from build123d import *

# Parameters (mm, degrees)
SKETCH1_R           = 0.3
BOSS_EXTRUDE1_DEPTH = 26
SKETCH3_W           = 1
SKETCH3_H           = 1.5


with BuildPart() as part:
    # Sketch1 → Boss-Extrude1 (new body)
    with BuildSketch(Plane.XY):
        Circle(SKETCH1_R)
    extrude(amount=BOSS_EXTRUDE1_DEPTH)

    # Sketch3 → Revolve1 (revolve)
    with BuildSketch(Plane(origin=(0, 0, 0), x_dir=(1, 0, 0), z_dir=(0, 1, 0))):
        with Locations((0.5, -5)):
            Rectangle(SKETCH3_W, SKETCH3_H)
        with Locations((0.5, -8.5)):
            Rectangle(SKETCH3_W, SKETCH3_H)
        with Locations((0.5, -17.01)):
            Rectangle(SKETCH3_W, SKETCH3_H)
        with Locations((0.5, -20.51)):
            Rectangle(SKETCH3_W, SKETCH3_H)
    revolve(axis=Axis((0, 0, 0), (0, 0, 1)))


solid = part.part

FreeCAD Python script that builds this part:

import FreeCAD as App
import Part
import Sketcher

V = App.Vector
Q = App.Units.Quantity


def add_polygon(sketch, points):
    """Adds a closed chain of lines whose ends are joined by coincident constraints."""
    first, n = sketch.GeometryCount, len(points)
    for a, b in zip(points, points[1:] + points[:1]):
        sketch.addGeometry(Part.LineSegment(App.Vector(*a, 0), App.Vector(*b, 0)), False)
    for i in range(n):
        sketch.addConstraint(Sketcher.Constraint("Coincident", first + i, 2, first + (i + 1) % n, 1))

doc = App.newDocument("Part")
body = doc.addObject("PartDesign::Body", "Body")

# Sketch on XY plane
sketch1 = doc.addObject("Sketcher::SketchObject", "Sketch")
body.addObject(sketch1)
sketch1.AttachmentSupport = (doc.XY_Plane, [""])
sketch1.MapMode = "FlatFace"
sketch1.addGeometry(Part.Circle(V(0, 0, 0), V(0, 0, 1), 0.3), False)
sketch1.addConstraint(Sketcher.Constraint("Coincident", 0, 3, -1, 1))
sketch1.addConstraint(Sketcher.Constraint("Diameter", 0, Q("0.6 mm")))
pad1 = doc.addObject("PartDesign::Pad", "Pad")
body.addObject(pad1)
pad1.Profile = sketch1
pad1.Length = 26

# Sketch on XZ plane
sketch2 = doc.addObject("Sketcher::SketchObject", "Sketch001")
body.addObject(sketch2)
sketch2.AttachmentSupport = (doc.XZ_Plane, [""])
sketch2.MapMode = "FlatFace"
add_polygon(sketch2, [(0, 4.2), (0, 5.8), (1, 5.8), (1, 4.2)])  # lines 0-3
add_polygon(sketch2, [(0, 7.8), (0, 9.2), (1, 9.2), (1, 7.8)])  # lines 4-7
add_polygon(sketch2, [(0, 16.3), (0, 17.8), (1, 17.8), (1, 16.3)])  # lines 8-11
add_polygon(sketch2, [(0, 19.8), (0, 21.3), (1, 21.3), (1, 19.8)])  # lines 12-15
sketch2.addConstraint(Sketcher.Constraint("Vertical", 0))
sketch2.addConstraint(Sketcher.Constraint("Horizontal", 1))
sketch2.addConstraint(Sketcher.Constraint("Vertical", 2))
sketch2.addConstraint(Sketcher.Constraint("Horizontal", 3))
sketch2.addConstraint(Sketcher.Constraint("Vertical", 4))
sketch2.addConstraint(Sketcher.Constraint("Horizontal", 5))
sketch2.addConstraint(Sketcher.Constraint("Vertical", 6))
sketch2.addConstraint(Sketcher.Constraint("Horizontal", 7))
sketch2.addConstraint(Sketcher.Constraint("Vertical", 8))
sketch2.addConstraint(Sketcher.Constraint("Horizontal", 9))
sketch2.addConstraint(Sketcher.Constraint("Vertical", 10))
sketch2.addConstraint(Sketcher.Constraint("Horizontal", 11))
sketch2.addConstraint(Sketcher.Constraint("Vertical", 12))
sketch2.addConstraint(Sketcher.Constraint("Horizontal", 13))
sketch2.addConstraint(Sketcher.Constraint("Vertical", 14))
sketch2.addConstraint(Sketcher.Constraint("Horizontal", 15))
sketch2.addConstraint(Sketcher.Constraint("PointOnObject", 0, 2, -2))
sketch2.addConstraint(Sketcher.Constraint("PointOnObject", 4, 2, -2))
sketch2.addConstraint(Sketcher.Constraint("PointOnObject", 8, 2, -2))
sketch2.addConstraint(Sketcher.Constraint("PointOnObject", 12, 2, -2))
sketch2.addConstraint(Sketcher.Constraint("Vertical", 2, 2, 5, 2))
sketch2.addConstraint(Sketcher.Constraint("Vertical", 6, 2, 9, 2))
sketch2.addConstraint(Sketcher.Constraint("Vertical", 10, 2, 13, 2))
sketch2.addConstraint(Sketcher.Constraint("Equal", 2, 4))
sketch2.addConstraint(Sketcher.Constraint("Equal", 6, 8))
sketch2.addConstraint(Sketcher.Constraint("Equal", 10, 12))
sketch2.addConstraint(Sketcher.Constraint("DistanceX", 1, 1, 1, 2, Q("1 mm")))
sketch2.addConstraint(Sketcher.Constraint("DistanceY", 0, 1, 0, 2, Q("1.5 mm")))
sketch2.addConstraint(Sketcher.Constraint("DistanceY", 3, 2, 4, 2, Q("5 mm")))
sketch2.addConstraint(Sketcher.Constraint("DistanceY", 11, 2, 12, 2, Q("5 mm")))
sketch2.addConstraint(Sketcher.Constraint("DistanceY", -1, 1, 0, 2, Q("5.75 mm")))
sketch2.addConstraint(Sketcher.Constraint("DistanceY", -1, 1, 8, 2, Q("17.76 mm")))
revolution = doc.addObject("PartDesign::Revolution", "Revolution")
body.addObject(revolution)
revolution.Profile = sketch2
revolution.ReferenceAxis = (sketch2, ["V_Axis"])
revolution.Angle = 360

doc.recompute()
